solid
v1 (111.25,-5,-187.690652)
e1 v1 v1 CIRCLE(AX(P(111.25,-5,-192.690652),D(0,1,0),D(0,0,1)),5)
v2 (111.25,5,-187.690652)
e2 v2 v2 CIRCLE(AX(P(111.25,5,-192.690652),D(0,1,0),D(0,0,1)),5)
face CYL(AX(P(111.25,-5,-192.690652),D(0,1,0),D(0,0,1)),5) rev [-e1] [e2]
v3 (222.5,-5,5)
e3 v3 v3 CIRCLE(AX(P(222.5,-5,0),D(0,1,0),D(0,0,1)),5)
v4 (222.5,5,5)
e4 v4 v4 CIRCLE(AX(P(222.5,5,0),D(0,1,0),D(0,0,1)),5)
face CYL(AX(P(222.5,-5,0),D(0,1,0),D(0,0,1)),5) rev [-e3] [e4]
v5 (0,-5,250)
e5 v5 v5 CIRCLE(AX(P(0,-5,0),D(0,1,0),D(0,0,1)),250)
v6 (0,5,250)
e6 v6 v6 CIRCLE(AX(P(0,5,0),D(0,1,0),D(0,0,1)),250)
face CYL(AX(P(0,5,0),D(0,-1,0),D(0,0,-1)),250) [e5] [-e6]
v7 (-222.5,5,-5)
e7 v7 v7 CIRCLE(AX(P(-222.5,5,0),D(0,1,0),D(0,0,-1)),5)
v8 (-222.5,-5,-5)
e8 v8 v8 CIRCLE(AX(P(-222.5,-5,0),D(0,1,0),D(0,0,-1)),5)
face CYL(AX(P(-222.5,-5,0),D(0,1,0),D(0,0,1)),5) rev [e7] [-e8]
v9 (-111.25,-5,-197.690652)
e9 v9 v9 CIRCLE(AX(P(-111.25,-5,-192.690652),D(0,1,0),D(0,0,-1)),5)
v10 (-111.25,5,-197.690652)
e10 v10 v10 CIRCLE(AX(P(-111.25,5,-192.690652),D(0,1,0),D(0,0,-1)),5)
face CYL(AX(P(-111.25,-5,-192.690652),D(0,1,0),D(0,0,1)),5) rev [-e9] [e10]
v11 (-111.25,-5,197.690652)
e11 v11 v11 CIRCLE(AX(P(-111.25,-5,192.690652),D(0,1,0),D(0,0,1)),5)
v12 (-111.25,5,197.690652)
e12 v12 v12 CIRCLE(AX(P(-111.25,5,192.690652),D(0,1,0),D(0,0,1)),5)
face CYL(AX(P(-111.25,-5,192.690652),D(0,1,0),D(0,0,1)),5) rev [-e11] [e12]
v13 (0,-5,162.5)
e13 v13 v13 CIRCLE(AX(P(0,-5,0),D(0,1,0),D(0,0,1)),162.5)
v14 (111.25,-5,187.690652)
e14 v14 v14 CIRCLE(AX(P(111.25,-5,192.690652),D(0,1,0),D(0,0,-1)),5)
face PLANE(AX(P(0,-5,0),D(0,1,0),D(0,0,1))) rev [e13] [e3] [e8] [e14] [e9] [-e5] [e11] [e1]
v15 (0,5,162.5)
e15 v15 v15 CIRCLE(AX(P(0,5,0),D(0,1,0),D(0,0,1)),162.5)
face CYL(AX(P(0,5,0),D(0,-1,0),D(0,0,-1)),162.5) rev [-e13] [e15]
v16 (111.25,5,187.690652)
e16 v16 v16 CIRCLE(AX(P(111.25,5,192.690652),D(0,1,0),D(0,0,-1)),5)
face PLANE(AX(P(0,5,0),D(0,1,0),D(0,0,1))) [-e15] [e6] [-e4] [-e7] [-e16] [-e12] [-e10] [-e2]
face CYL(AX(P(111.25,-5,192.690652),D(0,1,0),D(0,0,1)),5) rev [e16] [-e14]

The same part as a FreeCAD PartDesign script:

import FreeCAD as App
import Part
import Sketcher

doc = App.newDocument("Part")
params = doc.addObject("Spreadsheet::Sheet", "Params")
for row, (alias, value) in enumerate([
    ("sketch1_diameter", "500 mm"),
    ("sketch1_diameter2", "325 mm"),
    ("pad1_length", "10 mm"),
    ("sketch2_diameter", "10 mm"),
], start=1):
    params.set(f"A{row}", alias)
    params.set(f"B{row}", "=" + value)
    params.setAlias(f"B{row}", alias)

body = doc.addObject("PartDesign::Body", "Body")

# Sketch on XZ plane
sketch1 = body.newObject("Sketcher::SketchObject", "Sketch")
sketch1.AttachmentSupport = (doc.getObject("XZ_Plane"), [""])
sketch1.MapMode = "FlatFace"
sketch1.addGeometry([
    Part.Circle(App.Vector(0, 0, 0), App.Vector(0, 0, 1), 250),
    Part.Circle(App.Vector(0, 0, 0), App.Vector(0, 0, 1), 162),
], False)
sketch1.addConstraint([
    Sketcher.Constraint("Coincident", 0, 3, -1, 1),
    Sketcher.Constraint("Coincident", 1, 3, -1, 1),
    Sketcher.Constraint("Diameter", 0, 500.0),
    Sketcher.Constraint("Diameter", 1, 325.0),
])
sketch1.setExpression("Constraints[2]", "Params.sketch1_diameter")
sketch1.setExpression("Constraints[3]", "Params.sketch1_diameter2")
pad1 = body.newObject("PartDesign::Pad", "Pad")
pad1.Profile = sketch1
pad1.setExpression("Length", "Params.pad1_length")
pad1.Midplane = True

# Sketch on XZ plane
sketch2 = body.newObject("Sketcher::SketchObject", "Sketch001")
sketch2.AttachmentSupport = (doc.getObject("XZ_Plane"), [""])
sketch2.MapMode = "FlatFace"
sketch2.AttachmentOffset = App.Placement(App.Vector(0, 0, -5), App.Rotation())
sketch2.addGeometry([
    Part.Circle(App.Vector(111, -193, 0), App.Vector(0, 0, 1), 5),  # 0
    Part.Circle(App.Vector(222, 0, 0), App.Vector(0, 0, 1), 5),  # 1
    Part.Circle(App.Vector(-111, -193, 0), App.Vector(0, 0, 1), 5),  # 2
    Part.Circle(App.Vector(-222, 0, 0), App.Vector(0, 0, 1), 5),  # 3
    Part.Circle(App.Vector(111, 193, 0), App.Vector(0, 0, 1), 5),  # 4
    Part.Circle(App.Vector(-111, 193, 0), App.Vector(0, 0, 1), 5),  # 5
], False)
sketch2.addConstraint([
    Sketcher.Constraint("Equal", 0, 1),
    Sketcher.Constraint("Equal", 1, 2),
    Sketcher.Constraint("Equal", 2, 3),
    Sketcher.Constraint("Equal", 3, 4),
    Sketcher.Constraint("Equal", 4, 5),
    Sketcher.Constraint("Symmetric", 1, 3, 3, 3, -1, 1),
    Sketcher.Constraint("Symmetric", 2, 3, 4, 3, -1, 1),
    Sketcher.Constraint("Symmetric", 0, 3, 5, 3, -1, 1),
    Sketcher.Constraint("Symmetric", 0, 3, 2, 3, -2),
    Sketcher.Constraint("PointOnObject", 1, 3, -1),
    Sketcher.Constraint("Diameter", 0, 10.0),
    Sketcher.Constraint("DistanceX", 3, 3, 1, 3, 445.0),
    Sketcher.Constraint("DistanceX", 2, 3, 0, 3, 222.5),
    Sketcher.Constraint("DistanceY", 0, 3, -1, 1, 192.690652),
])
sketch2.setExpression("Constraints[10]", "Params.sketch2_diameter")
pocket1 = body.newObject("PartDesign::Pocket", "Pocket")
pocket1.Profile = sketch2
pocket1.Type = "ThroughAll"
pocket1.Reversed = True

doc.recompute()
